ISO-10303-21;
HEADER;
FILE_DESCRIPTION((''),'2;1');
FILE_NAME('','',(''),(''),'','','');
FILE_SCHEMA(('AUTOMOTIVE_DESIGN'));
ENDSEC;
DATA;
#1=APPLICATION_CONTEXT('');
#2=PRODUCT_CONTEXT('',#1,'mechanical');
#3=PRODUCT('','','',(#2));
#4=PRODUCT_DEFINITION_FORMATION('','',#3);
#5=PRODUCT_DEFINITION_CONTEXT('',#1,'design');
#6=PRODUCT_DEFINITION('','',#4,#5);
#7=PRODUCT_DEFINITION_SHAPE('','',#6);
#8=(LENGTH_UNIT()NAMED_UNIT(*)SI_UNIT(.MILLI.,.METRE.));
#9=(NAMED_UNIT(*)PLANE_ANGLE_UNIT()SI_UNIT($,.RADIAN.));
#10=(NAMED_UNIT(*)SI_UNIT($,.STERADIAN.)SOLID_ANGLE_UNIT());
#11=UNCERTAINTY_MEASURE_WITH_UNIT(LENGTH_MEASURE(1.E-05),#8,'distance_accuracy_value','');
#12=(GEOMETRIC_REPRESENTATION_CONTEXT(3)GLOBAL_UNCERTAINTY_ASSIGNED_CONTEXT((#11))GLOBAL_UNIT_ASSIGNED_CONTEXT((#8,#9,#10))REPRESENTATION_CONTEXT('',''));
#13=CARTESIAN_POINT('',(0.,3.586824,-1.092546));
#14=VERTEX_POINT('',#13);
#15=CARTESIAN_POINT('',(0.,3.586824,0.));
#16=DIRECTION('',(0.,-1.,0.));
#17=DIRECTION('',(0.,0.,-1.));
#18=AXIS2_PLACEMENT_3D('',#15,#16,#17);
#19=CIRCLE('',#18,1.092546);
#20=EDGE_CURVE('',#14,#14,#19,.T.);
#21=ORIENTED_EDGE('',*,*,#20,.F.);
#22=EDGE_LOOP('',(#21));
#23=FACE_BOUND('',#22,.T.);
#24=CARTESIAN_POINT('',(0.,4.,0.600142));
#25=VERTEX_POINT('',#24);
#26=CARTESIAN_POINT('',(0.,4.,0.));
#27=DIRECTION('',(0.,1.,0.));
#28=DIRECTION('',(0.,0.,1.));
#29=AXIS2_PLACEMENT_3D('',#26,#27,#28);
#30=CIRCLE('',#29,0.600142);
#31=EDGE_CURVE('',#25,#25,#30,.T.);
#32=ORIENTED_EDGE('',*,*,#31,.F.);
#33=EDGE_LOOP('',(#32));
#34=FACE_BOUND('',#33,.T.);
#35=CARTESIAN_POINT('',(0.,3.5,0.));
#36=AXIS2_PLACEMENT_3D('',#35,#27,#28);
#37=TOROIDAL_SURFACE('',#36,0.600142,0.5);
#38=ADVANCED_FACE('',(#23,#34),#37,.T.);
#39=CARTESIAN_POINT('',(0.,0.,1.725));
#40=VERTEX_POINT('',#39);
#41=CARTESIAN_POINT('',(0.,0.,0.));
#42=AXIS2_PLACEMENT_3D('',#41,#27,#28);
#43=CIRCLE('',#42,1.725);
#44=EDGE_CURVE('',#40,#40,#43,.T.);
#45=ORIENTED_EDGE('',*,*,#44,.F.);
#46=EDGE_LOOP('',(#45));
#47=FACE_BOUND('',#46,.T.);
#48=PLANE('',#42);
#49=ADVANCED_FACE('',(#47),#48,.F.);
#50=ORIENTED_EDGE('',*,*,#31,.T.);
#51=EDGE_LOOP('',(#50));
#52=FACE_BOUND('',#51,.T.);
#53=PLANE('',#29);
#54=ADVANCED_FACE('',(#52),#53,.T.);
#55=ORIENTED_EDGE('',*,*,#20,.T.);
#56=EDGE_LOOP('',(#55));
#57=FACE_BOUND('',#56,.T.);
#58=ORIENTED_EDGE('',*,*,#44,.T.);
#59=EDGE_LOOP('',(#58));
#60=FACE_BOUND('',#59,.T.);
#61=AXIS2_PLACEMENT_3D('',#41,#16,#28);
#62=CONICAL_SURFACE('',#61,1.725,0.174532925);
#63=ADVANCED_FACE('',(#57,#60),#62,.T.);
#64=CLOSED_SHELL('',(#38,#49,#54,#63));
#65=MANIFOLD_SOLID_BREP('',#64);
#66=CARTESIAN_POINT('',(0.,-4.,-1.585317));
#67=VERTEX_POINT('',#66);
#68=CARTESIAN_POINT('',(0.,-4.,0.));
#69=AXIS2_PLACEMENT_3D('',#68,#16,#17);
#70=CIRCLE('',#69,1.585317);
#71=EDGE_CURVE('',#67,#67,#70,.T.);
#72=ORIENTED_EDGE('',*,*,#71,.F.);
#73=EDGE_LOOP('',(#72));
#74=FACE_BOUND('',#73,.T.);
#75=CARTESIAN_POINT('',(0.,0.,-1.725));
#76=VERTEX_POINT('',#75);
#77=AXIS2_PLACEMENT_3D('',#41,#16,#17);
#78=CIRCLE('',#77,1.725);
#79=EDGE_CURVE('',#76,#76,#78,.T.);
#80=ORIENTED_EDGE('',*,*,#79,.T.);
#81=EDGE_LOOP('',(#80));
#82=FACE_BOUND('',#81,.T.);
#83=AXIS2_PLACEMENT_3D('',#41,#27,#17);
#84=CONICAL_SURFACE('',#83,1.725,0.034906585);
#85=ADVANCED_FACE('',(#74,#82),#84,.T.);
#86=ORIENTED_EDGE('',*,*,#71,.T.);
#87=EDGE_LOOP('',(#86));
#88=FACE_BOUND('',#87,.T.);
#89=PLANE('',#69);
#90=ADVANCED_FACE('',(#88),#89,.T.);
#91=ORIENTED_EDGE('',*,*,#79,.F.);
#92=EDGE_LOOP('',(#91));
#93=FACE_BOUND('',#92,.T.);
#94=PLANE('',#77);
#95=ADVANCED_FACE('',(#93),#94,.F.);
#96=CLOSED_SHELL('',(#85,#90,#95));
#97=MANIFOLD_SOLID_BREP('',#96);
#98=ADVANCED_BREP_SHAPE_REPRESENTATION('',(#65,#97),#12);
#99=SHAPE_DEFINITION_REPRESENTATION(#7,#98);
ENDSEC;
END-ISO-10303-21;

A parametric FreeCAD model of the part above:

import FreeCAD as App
import Part
import Sketcher


def edges_at(feature, points):
    """Names of the edges that pass closest to the given points."""
    edges = feature.Shape.Edges
    near = lambda p: min(range(len(edges)), key=lambda i: edges[i].distToShape(Part.Vertex(*p))[0])
    return sorted({f"Edge{near(p) + 1}" for p in points})

doc = App.newDocument("Part")
body = doc.addObject("PartDesign::Body", "Body")

# Sketch on XZ plane
sketch1 = body.newObject("Sketcher::SketchObject", "Sketch")
sketch1.AttachmentSupport = (doc.getObject("XZ_Plane"), [""])
sketch1.MapMode = "FlatFace"
sketch1.addGeometry(Part.Circle(App.Vector(0, 0, 0), App.Vector(0, 0, 1), 1.7), False)
sketch1.addConstraint(Sketcher.Constraint("Coincident", 0, 3, -1, 1))
sketch1.addConstraint(Sketcher.Constraint("Diameter", 0, 3.45))
pad1 = body.newObject("PartDesign::Pad", "Pad")
pad1.Profile = sketch1
pad1.Length = 4
pad1.Reversed = True
pad1.TaperAngle = -10
doc.recompute()

fillet = body.newObject("PartDesign::Fillet", "Fillet")
fillet.Base = (pad1, edges_at(pad1, [(-1.02, 4, 0)]))
fillet.Radius = 0.5
body2 = doc.addObject("PartDesign::Body", "Body001")

# Sketch on XZ plane
sketch2 = body2.newObject("Sketcher::SketchObject", "Sketch001")
sketch2.AttachmentSupport = (doc.getObject("XZ_Plane001"), [""])
sketch2.MapMode = "FlatFace"
sketch2.addGeometry(Part.Circle(App.Vector(0, 0, 0), App.Vector(0, 0, 1), 1.7), False)
sketch2.addConstraint(Sketcher.Constraint("Coincident", 0, 3, -1, 1))
sketch2.addConstraint(Sketcher.Constraint("Diameter", 0, 3.45))
pad2 = body2.newObject("PartDesign::Pad", "Pad001")
pad2.Profile = sketch2
pad2.Length = 4
pad2.TaperAngle = -2

doc.recompute()
